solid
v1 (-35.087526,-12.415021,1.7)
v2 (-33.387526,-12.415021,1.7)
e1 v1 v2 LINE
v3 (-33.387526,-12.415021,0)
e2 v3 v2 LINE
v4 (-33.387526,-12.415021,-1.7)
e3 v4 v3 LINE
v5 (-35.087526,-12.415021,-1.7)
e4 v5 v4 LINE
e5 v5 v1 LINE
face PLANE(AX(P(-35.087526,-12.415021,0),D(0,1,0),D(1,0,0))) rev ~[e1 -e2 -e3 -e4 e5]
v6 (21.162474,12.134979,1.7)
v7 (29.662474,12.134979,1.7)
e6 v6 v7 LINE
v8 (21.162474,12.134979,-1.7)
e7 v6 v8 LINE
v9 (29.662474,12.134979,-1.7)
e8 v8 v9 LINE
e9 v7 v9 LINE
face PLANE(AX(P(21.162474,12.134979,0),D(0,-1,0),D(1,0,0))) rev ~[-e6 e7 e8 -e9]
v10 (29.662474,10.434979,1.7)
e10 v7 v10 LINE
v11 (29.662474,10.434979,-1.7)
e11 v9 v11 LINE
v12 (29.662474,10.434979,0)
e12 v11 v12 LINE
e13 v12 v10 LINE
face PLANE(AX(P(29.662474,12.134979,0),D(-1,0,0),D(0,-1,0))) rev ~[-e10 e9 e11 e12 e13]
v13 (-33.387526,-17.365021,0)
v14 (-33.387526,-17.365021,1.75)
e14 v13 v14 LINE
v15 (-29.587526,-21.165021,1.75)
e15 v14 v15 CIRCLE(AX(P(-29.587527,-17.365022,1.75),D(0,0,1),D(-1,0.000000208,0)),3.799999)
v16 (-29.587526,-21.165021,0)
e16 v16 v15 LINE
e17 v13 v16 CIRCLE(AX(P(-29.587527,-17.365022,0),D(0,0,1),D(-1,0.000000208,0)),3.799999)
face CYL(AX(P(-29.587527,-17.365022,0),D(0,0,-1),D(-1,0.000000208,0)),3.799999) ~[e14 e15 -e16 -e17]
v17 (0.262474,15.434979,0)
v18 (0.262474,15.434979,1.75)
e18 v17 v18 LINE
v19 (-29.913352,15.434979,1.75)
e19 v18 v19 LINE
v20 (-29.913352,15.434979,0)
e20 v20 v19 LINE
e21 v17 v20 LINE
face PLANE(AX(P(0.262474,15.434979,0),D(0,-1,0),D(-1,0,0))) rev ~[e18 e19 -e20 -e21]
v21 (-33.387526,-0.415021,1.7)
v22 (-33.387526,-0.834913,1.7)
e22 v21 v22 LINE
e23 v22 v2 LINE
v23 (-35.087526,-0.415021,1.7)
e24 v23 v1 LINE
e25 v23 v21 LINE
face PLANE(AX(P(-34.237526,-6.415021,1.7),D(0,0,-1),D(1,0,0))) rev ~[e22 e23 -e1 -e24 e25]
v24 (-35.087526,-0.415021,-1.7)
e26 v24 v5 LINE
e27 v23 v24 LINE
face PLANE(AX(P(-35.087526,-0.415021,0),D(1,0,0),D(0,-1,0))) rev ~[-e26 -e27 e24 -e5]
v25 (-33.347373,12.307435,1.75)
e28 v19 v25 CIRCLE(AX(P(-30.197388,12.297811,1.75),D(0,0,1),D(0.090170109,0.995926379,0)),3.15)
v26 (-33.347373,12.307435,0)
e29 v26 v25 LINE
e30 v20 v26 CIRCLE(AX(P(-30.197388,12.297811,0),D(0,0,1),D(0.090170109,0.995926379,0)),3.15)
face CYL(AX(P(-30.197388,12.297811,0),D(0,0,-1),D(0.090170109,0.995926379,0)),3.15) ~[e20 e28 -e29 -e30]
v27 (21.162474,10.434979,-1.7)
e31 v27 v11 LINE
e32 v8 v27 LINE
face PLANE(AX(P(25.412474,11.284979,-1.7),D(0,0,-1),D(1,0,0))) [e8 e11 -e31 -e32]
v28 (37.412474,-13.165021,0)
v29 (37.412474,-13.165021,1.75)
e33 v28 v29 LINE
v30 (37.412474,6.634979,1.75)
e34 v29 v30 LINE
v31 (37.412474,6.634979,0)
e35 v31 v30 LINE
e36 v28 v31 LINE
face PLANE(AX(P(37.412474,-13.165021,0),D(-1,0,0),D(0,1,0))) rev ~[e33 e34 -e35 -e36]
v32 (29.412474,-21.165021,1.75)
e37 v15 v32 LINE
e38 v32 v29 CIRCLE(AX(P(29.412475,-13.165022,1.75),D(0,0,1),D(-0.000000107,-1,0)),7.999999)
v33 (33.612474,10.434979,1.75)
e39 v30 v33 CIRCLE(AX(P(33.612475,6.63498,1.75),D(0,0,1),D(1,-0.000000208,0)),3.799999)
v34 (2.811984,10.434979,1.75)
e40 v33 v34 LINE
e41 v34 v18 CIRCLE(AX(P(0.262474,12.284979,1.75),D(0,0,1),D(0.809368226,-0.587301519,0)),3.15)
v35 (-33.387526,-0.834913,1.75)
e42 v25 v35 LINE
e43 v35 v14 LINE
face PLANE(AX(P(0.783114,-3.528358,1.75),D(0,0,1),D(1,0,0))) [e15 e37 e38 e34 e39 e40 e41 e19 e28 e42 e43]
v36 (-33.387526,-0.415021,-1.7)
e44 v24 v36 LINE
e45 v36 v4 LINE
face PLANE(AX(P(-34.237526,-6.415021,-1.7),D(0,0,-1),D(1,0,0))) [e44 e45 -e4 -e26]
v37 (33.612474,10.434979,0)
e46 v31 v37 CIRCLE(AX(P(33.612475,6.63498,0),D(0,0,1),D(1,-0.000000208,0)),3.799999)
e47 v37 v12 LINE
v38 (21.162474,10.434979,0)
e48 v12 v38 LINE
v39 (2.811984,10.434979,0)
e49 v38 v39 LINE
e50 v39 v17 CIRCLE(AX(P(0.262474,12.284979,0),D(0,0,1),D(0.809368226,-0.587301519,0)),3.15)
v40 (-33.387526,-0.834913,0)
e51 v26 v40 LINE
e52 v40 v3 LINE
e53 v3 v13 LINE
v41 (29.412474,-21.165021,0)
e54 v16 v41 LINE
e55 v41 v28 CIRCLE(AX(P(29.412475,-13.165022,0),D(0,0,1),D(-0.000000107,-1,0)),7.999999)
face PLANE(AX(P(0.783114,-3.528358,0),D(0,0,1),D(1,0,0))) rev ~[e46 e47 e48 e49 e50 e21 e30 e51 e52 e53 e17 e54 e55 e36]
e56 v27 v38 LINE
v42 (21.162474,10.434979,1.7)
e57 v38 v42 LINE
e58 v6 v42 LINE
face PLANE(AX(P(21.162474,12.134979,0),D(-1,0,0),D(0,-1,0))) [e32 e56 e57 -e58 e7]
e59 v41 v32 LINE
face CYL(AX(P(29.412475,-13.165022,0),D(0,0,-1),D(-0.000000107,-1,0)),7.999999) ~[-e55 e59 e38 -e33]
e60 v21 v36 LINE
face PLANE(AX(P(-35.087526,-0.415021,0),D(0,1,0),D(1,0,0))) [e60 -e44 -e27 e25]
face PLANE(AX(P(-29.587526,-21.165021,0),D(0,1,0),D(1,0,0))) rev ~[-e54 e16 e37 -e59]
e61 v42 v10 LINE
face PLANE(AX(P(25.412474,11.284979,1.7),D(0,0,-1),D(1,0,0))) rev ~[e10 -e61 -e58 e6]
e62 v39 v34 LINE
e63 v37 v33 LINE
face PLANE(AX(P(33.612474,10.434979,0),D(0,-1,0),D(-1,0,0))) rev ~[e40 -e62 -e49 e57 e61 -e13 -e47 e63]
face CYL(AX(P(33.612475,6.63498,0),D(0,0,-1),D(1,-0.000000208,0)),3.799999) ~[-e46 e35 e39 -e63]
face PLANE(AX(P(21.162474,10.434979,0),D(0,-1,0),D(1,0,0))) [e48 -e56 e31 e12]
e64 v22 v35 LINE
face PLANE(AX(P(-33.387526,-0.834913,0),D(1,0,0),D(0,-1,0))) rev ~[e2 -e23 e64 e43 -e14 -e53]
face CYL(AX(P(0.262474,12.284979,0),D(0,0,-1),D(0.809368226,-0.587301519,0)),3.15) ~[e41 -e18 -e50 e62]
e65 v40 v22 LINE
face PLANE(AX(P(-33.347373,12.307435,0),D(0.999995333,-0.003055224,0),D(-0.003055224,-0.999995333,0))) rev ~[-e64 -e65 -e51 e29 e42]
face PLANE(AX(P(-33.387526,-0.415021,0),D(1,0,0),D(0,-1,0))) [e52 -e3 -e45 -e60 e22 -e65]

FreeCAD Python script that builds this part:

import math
import FreeCAD as App
import Part
import Sketcher


def add_polygon(sketch, points):
    """Adds a closed chain of lines whose ends are joined by coincident constraints."""
    first, n = sketch.GeometryCount, len(points)
    for a, b in zip(points, points[1:] + points[:1]):
        sketch.addGeometry(Part.LineSegment(App.Vector(*a, 0), App.Vector(*b, 0)), False)
    for i in range(n):
        sketch.addConstraint(Sketcher.Constraint("Coincident", first + i, 2, first + (i + 1) % n, 1))

doc = App.newDocument("Part")
body = doc.addObject("PartDesign::Body", "Body")

sketch1 = doc.addObject("Sketcher::SketchObject", "Sketch")
body.addObject(sketch1)
sketch1.AttachmentSupport = (doc.XY_Plane, [""])
sketch1.MapMode = "FlatFace"
sketch1.addGeometry([
    Part.LineSegment(App.Vector(-33.387526, -0.834913, 0), App.Vector(-33.387526, -17.365021, 0)),
    Part.ArcOfCircle(Part.Circle(App.Vector(-29.587527, -17.365022, 0), App.Vector(0, 0, 1), 3.799999), math.radians(179.999988), math.radians(270.000012)),
    Part.LineSegment(App.Vector(-29.587526, -21.165021, 0), App.Vector(29.412474, -21.165021, 0)),
    Part.ArcOfCircle(Part.Circle(App.Vector(29.412475, -13.165022, 0), App.Vector(0, 0, 1), 7.999999), math.radians(-90.000006), math.radians(0.000006)),
    Part.LineSegment(App.Vector(37.412474, -13.165021, 0), App.Vector(37.412474, 6.634979, 0)),
    Part.ArcOfCircle(Part.Circle(App.Vector(33.612475, 6.63498, 0), App.Vector(0, 0, 1), 3.799999), math.radians(-0.000012), math.radians(90.000012)),
    Part.LineSegment(App.Vector(33.612474, 10.434979, 0), App.Vector(2.811984, 10.434979, 0)),
    Part.ArcOfCircle(Part.Circle(App.Vector(0.262474, 12.284979, 0), App.Vector(0, 0, 1), 3.15), math.radians(-35.965749), math.radians(90)),
    Part.LineSegment(App.Vector(0.262474, 15.434979, 0), App.Vector(-29.913352, 15.434979, 0)),
    Part.ArcOfCircle(Part.Circle(App.Vector(-30.197388, 12.297811, 0), App.Vector(0, 0, 1), 3.15), math.radians(84.826607), math.radians(179.824948)),
    Part.LineSegment(App.Vector(-33.347373, 12.307435, 0), App.Vector(-33.387526, -0.834913, 0)),
], False)
sketch1.addConstraint([
    Sketcher.Constraint("Tangent", 0, 2, 1, 1),
    Sketcher.Constraint("Tangent", 1, 2, 2, 1),
    Sketcher.Constraint("Tangent", 2, 2, 3, 1),
    Sketcher.Constraint("Tangent", 3, 2, 4, 1),
    Sketcher.Constraint("Tangent", 4, 2, 5, 1),
    Sketcher.Constraint("Tangent", 5, 2, 6, 1),
    Sketcher.Constraint("Coincident", 6, 2, 7, 1),
    Sketcher.Constraint("Tangent", 7, 2, 8, 1),
    Sketcher.Constraint("Coincident", 8, 2, 9, 1),
    Sketcher.Constraint("Tangent", 9, 2, 10, 1),
    Sketcher.Constraint("Coincident", 10, 2, 0, 1),
    Sketcher.Constraint("Vertical", 0),
    Sketcher.Constraint("Horizontal", 2),
    Sketcher.Constraint("Vertical", 4),
    Sketcher.Constraint("Horizontal", 6),
    Sketcher.Constraint("Horizontal", 8),
    Sketcher.Constraint("Equal", 1, 5),
    Sketcher.Constraint("Equal", 7, 9),
    Sketcher.Constraint("Radius", 3, 7.999999),
    Sketcher.Constraint("Radius", 1, 3.799999),
    Sketcher.Constraint("DistanceX", 2, 1, 2, 2, 59.0),
    Sketcher.Constraint("Radius", 7, 3.15),
    Sketcher.Constraint("DistanceY", 4, 1, 4, 2, 19.8),
    Sketcher.Constraint("DistanceY", 6, 2, 7, 2, 5.0),
    Sketcher.Constraint("DistanceX", 7, 3, 5, 3, 33.350001),
    Sketcher.Constraint("Distance", 10, 13.142409),
    Sketcher.Constraint("DistanceX", 8, 2, 8, 1, 30.175826),
    Sketcher.Constraint("DistanceY", 0, 2, 0, 1, 16.530108),
    Sketcher.Constraint("DistanceY", 1, 3, -1, 1, 17.365022),
    Sketcher.Constraint("DistanceX", 8, 2, -1, 1, 29.913352),
])
pad1 = doc.addObject("PartDesign::Pad", "Pad")
body.addObject(pad1)
pad1.Profile = sketch1
pad1.Length = 1.75

sketch2 = doc.addObject("Sketcher::SketchObject", "Sketch001")
body.addObject(sketch2)
sketch2.AttachmentSupport = (doc.XY_Plane, [""])
sketch2.MapMode = "FlatFace"
add_polygon(sketch2, [(21.162474, 10.434979), (21.162474, 12.134979), (29.662474, 12.134979), (29.662474, 10.434979)])
add_polygon(sketch2, [(-35.087526, -12.415021), (-35.087526, -0.415021), (-33.387526, -0.415021), (-33.387526, -12.415021)])
sketch2.addConstraint([
    Sketcher.Constraint("Vertical", 0),
    Sketcher.Constraint("Horizontal", 1),
    Sketcher.Constraint("Vertical", 2),
    Sketcher.Constraint("Horizontal", 3),
    Sketcher.Constraint("Vertical", 4),
    Sketcher.Constraint("Horizontal", 5),
    Sketcher.Constraint("Vertical", 6),
    Sketcher.Constraint("Horizontal", 7),
    Sketcher.Constraint("Equal", 7, 0),
    Sketcher.Constraint("DistanceY", 4, 1, 4, 2, 12.0),
    Sketcher.Constraint("DistanceX", 1, 1, 1, 2, 8.5),
    Sketcher.Constraint("DistanceX", 5, 1, 5, 2, 1.7),
    Sketcher.Constraint("DistanceX", 4, 2, 3, 2, 56.25),
    Sketcher.Constraint("DistanceY", 4, 2, 3, 2, 10.85),
    Sketcher.Constraint("DistanceY", -1, 1, 0, 2, 12.134979),
    Sketcher.Constraint("DistanceX", -1, 1, 0, 2, 21.162474),
])
pad2 = doc.addObject("PartDesign::Pad", "Pad001")
body.addObject(pad2)
pad2.Profile = sketch2
pad2.Length = 3.4
pad2.Midplane = True

doc.recompute()
